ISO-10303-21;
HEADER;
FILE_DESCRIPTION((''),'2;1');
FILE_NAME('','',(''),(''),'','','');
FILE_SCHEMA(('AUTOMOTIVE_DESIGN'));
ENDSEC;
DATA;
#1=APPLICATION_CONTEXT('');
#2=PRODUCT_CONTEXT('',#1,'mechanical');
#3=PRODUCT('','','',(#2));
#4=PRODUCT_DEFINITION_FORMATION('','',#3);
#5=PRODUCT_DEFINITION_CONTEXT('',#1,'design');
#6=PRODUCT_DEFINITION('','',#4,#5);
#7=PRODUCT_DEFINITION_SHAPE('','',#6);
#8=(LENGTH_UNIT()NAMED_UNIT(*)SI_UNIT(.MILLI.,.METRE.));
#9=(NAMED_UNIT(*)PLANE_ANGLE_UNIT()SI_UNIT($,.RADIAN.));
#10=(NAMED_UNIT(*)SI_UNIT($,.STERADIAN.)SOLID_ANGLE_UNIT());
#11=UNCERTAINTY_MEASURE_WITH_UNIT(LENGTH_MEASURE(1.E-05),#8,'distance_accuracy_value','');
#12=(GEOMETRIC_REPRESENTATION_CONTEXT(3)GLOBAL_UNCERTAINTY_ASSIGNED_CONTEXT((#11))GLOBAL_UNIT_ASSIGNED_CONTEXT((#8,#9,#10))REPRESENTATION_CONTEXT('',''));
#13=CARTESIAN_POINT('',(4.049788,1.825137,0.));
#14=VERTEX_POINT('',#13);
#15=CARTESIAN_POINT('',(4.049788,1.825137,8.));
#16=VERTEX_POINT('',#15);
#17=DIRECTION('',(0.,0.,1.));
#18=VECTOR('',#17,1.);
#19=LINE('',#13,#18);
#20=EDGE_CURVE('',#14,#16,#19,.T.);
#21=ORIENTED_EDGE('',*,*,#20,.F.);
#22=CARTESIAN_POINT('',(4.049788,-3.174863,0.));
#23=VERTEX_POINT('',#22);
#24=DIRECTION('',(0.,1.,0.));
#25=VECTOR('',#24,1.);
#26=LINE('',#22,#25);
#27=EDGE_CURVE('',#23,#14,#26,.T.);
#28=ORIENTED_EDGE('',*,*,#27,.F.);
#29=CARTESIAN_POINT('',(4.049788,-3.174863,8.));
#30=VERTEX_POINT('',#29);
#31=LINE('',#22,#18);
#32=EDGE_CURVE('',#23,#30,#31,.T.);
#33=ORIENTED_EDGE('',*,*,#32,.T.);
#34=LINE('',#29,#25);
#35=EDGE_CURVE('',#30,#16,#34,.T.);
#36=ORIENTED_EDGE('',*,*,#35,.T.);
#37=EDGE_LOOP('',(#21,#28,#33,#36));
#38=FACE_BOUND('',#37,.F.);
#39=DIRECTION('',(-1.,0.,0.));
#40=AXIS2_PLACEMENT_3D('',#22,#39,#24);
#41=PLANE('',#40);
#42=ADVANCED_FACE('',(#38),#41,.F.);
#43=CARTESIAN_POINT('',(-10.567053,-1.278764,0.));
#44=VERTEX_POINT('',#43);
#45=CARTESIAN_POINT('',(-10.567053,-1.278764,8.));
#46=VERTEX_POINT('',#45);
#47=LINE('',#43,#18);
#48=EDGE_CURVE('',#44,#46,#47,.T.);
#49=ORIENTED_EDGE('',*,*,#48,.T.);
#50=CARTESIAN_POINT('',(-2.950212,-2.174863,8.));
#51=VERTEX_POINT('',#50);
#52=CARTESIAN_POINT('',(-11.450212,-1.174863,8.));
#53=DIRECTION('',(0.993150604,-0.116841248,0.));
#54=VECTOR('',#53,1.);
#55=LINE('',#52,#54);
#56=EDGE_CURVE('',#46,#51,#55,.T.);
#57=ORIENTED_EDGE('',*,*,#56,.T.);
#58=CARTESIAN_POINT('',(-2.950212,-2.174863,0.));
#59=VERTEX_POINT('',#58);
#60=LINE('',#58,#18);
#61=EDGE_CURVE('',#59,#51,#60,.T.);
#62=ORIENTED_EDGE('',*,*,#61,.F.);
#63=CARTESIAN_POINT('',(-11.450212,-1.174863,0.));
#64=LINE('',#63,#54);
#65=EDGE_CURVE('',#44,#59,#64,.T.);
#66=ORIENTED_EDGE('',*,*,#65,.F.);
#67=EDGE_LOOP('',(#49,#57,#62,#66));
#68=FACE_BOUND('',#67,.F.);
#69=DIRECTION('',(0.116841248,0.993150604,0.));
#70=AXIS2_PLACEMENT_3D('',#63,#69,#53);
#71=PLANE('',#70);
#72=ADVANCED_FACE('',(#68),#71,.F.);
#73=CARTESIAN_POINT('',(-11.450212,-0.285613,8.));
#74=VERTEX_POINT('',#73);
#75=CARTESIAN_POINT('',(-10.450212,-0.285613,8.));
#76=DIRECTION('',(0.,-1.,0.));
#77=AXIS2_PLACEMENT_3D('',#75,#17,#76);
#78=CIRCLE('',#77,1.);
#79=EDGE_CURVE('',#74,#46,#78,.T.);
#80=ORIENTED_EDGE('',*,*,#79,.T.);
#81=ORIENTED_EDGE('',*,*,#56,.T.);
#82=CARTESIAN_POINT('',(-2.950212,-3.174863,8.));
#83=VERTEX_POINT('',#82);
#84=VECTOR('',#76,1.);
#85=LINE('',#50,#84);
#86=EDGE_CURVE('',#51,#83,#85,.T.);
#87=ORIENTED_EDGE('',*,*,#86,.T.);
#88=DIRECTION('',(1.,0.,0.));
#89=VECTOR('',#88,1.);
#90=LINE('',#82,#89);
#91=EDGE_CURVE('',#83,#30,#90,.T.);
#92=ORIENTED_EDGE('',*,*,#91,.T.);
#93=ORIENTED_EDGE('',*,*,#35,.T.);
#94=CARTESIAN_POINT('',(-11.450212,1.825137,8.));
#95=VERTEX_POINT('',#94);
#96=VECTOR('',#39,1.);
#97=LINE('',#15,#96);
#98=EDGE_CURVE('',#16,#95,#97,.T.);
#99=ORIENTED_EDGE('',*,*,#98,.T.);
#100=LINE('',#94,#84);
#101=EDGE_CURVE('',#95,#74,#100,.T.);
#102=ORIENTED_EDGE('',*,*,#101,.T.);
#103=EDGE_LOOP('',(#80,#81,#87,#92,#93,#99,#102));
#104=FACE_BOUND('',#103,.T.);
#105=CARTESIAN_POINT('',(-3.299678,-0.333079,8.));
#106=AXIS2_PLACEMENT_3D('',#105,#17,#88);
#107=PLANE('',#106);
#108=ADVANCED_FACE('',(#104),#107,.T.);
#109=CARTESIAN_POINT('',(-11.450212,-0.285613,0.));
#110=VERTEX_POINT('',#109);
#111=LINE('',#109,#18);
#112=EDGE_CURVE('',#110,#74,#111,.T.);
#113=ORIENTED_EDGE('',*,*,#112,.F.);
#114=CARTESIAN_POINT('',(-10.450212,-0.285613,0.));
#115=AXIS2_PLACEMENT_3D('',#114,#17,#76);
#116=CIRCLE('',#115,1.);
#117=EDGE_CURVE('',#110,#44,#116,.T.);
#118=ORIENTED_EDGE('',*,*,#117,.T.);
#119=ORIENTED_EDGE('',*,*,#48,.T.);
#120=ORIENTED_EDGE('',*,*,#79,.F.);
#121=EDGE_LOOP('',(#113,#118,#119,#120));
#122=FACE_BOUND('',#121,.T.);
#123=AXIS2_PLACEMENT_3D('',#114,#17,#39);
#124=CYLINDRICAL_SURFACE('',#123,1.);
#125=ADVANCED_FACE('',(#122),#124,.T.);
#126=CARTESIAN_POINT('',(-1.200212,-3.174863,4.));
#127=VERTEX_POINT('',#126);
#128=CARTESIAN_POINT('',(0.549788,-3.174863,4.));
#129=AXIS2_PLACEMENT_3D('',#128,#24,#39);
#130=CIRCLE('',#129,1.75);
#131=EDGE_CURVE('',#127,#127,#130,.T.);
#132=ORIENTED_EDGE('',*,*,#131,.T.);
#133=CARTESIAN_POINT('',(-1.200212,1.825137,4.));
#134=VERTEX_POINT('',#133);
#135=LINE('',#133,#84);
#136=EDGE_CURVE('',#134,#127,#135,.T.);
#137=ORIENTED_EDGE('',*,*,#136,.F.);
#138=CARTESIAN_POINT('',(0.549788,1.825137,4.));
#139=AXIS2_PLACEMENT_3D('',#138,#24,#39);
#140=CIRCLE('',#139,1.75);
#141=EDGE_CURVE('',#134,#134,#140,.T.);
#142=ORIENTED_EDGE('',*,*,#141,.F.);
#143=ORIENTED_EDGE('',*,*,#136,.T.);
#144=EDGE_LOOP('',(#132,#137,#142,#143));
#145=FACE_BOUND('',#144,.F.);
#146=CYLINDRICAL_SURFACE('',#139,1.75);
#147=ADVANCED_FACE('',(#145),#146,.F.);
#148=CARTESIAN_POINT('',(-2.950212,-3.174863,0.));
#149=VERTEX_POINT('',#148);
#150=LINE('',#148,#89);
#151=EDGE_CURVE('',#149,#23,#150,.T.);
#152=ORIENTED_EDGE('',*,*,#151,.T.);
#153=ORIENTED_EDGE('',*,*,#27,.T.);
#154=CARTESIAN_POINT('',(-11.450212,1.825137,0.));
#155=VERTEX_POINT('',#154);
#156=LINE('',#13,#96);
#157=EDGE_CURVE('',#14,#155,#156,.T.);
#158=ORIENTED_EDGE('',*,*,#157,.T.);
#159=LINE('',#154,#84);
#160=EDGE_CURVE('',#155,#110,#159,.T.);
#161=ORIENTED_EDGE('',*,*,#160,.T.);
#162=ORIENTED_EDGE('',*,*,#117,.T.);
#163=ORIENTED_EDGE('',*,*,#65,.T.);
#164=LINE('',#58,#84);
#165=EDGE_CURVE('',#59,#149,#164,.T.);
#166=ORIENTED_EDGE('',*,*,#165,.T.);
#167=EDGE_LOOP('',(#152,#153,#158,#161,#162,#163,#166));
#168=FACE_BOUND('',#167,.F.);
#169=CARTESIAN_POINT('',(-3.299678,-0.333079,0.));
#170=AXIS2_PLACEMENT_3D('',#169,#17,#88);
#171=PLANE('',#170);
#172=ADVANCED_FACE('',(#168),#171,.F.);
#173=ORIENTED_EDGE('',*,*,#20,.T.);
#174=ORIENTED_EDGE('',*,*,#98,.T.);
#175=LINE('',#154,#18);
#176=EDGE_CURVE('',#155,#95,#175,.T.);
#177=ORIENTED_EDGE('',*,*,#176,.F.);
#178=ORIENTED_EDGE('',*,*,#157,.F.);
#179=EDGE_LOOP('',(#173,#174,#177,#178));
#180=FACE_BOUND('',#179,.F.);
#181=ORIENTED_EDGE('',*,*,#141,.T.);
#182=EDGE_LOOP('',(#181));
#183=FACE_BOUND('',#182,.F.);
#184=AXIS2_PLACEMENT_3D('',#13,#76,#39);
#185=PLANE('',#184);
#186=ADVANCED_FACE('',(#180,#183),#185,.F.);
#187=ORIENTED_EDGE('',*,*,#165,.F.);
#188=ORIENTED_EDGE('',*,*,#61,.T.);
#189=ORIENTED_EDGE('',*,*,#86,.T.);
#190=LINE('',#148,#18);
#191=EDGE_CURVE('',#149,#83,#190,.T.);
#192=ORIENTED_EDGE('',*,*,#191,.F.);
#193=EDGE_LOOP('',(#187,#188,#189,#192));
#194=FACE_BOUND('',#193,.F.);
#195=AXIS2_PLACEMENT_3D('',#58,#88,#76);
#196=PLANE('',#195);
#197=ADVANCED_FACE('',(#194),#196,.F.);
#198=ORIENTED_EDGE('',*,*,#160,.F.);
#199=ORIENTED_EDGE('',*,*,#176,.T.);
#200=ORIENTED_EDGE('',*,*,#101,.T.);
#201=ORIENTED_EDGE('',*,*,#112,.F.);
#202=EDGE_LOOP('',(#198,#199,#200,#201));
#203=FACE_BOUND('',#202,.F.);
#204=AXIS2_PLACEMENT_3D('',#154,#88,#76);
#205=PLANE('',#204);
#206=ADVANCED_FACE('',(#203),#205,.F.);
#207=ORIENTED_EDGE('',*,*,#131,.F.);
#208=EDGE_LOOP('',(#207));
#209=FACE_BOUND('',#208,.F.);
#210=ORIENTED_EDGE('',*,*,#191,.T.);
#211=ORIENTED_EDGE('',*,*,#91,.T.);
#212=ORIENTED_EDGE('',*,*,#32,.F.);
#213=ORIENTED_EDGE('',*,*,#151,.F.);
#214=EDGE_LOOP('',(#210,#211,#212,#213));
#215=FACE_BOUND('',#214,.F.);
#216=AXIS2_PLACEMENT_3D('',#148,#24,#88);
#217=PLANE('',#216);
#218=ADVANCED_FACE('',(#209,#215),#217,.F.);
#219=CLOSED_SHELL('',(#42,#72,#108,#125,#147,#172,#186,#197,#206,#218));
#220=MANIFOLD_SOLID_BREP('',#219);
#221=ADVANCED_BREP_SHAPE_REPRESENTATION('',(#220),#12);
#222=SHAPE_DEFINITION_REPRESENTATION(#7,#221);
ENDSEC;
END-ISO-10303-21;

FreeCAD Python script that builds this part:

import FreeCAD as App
import Part
import Sketcher
from FreeCAD import Vector


def edges_at(feature, points):
    """Names of the edges that pass closest to the given points."""
    edges = feature.Shape.Edges
    near = lambda p: min(range(len(edges)), key=lambda i: edges[i].distToShape(Part.Vertex(*p))[0])
    return sorted({f"Edge{near(p) + 1}" for p in points})

doc = App.newDocument("Part")
body = doc.addObject("PartDesign::Body", "Body")

# Sketch on XY plane
sketch1 = doc.addObject("Sketcher::SketchObject", "Sketch")
body.addObject(sketch1)
sketch1.AttachmentSupport = (doc.XY_Plane, [""])
sketch1.MapMode = "FlatFace"
sketch1.addGeometry([
    Part.LineSegment(Vector(4, -3.2, 0), Vector(4, 1.8, 0)),  # 0
    Part.LineSegment(Vector(4, 1.8, 0), Vector(-11.5, 1.8, 0)),  # 1
    Part.LineSegment(Vector(-11.5, 1.8, 0), Vector(-11.5, -1.2, 0)),  # 2
    Part.LineSegment(Vector(-11.5, -1.2, 0), Vector(-3, -2.2, 0)),  # 3
    Part.LineSegment(Vector(-3, -2.2, 0), Vector(-3, -3.2, 0)),  # 4
    Part.LineSegment(Vector(-3, -3.2, 0), Vector(4, -3.2, 0)),  # 5
], False)
sketch1.addConstraint([
    Sketcher.Constraint("Coincident", 0, 2, 1, 1),
    Sketcher.Constraint("Coincident", 1, 2, 2, 1),
    Sketcher.Constraint("Coincident", 2, 2, 3, 1),
    Sketcher.Constraint("Coincident", 3, 2, 4, 1),
    Sketcher.Constraint("Coincident", 4, 2, 5, 1),
    Sketcher.Constraint("Coincident", 5, 2, 0, 1),
    Sketcher.Constraint("Vertical", 0),
    Sketcher.Constraint("Horizontal", 1),
    Sketcher.Constraint("Vertical", 2),
    Sketcher.Constraint("Vertical", 4),
    Sketcher.Constraint("Horizontal", 5),
    Sketcher.Constraint("DistanceX", 5, 1, 5, 2, 7.0),
    Sketcher.Constraint("DistanceY", 0, 1, 0, 2, 5.0),
    Sketcher.Constraint("DistanceY", 2, 2, 2, 1, 3.0),
    Sketcher.Constraint("DistanceY", 4, 2, 4, 1, 1.0),
    Sketcher.Constraint("DistanceX", 1, 2, 1, 1, 15.5),
    Sketcher.Constraint("DistanceX", -1, 1, 0, 2, 4.049788),
    Sketcher.Constraint("DistanceY", -1, 1, 0, 2, 1.825137),
])
pad1 = doc.addObject("PartDesign::Pad", "Pad")
body.addObject(pad1)
pad1.Profile = sketch1
pad1.Length = 8

# Sketch on XZ plane
sketch2 = doc.addObject("Sketcher::SketchObject", "Sketch001")
body.addObject(sketch2)
sketch2.AttachmentSupport = (doc.XZ_Plane, [""])
sketch2.MapMode = "FlatFace"
sketch2.AttachmentOffset = App.Placement(Vector(0, 0, -1.825137), App.Rotation())
sketch2.addGeometry(Part.Circle(Vector(0.5, 4, 0), Vector(0, 0, 1), 1.8), False)
sketch2.addConstraint([
    Sketcher.Constraint("Diameter", 0, 3.5),
    Sketcher.Constraint("DistanceY", -1, 1, 0, 3, 4.0),
    Sketcher.Constraint("DistanceX", -1, 1, 0, 3, 0.549788),
])
pocket1 = doc.addObject("PartDesign::Pocket", "Pocket")
body.addObject(pocket1)
pocket1.Profile = sketch2
pocket1.Type = "ThroughAll"
pocket1.Reversed = True
doc.recompute()

fillet = doc.addObject("PartDesign::Fillet", "Fillet")
body.addObject(fillet)
fillet.Base = (pocket1, edges_at(pocket1, [(-11.45, -1.175, 4)]))
fillet.Radius = 1

doc.recompute()
